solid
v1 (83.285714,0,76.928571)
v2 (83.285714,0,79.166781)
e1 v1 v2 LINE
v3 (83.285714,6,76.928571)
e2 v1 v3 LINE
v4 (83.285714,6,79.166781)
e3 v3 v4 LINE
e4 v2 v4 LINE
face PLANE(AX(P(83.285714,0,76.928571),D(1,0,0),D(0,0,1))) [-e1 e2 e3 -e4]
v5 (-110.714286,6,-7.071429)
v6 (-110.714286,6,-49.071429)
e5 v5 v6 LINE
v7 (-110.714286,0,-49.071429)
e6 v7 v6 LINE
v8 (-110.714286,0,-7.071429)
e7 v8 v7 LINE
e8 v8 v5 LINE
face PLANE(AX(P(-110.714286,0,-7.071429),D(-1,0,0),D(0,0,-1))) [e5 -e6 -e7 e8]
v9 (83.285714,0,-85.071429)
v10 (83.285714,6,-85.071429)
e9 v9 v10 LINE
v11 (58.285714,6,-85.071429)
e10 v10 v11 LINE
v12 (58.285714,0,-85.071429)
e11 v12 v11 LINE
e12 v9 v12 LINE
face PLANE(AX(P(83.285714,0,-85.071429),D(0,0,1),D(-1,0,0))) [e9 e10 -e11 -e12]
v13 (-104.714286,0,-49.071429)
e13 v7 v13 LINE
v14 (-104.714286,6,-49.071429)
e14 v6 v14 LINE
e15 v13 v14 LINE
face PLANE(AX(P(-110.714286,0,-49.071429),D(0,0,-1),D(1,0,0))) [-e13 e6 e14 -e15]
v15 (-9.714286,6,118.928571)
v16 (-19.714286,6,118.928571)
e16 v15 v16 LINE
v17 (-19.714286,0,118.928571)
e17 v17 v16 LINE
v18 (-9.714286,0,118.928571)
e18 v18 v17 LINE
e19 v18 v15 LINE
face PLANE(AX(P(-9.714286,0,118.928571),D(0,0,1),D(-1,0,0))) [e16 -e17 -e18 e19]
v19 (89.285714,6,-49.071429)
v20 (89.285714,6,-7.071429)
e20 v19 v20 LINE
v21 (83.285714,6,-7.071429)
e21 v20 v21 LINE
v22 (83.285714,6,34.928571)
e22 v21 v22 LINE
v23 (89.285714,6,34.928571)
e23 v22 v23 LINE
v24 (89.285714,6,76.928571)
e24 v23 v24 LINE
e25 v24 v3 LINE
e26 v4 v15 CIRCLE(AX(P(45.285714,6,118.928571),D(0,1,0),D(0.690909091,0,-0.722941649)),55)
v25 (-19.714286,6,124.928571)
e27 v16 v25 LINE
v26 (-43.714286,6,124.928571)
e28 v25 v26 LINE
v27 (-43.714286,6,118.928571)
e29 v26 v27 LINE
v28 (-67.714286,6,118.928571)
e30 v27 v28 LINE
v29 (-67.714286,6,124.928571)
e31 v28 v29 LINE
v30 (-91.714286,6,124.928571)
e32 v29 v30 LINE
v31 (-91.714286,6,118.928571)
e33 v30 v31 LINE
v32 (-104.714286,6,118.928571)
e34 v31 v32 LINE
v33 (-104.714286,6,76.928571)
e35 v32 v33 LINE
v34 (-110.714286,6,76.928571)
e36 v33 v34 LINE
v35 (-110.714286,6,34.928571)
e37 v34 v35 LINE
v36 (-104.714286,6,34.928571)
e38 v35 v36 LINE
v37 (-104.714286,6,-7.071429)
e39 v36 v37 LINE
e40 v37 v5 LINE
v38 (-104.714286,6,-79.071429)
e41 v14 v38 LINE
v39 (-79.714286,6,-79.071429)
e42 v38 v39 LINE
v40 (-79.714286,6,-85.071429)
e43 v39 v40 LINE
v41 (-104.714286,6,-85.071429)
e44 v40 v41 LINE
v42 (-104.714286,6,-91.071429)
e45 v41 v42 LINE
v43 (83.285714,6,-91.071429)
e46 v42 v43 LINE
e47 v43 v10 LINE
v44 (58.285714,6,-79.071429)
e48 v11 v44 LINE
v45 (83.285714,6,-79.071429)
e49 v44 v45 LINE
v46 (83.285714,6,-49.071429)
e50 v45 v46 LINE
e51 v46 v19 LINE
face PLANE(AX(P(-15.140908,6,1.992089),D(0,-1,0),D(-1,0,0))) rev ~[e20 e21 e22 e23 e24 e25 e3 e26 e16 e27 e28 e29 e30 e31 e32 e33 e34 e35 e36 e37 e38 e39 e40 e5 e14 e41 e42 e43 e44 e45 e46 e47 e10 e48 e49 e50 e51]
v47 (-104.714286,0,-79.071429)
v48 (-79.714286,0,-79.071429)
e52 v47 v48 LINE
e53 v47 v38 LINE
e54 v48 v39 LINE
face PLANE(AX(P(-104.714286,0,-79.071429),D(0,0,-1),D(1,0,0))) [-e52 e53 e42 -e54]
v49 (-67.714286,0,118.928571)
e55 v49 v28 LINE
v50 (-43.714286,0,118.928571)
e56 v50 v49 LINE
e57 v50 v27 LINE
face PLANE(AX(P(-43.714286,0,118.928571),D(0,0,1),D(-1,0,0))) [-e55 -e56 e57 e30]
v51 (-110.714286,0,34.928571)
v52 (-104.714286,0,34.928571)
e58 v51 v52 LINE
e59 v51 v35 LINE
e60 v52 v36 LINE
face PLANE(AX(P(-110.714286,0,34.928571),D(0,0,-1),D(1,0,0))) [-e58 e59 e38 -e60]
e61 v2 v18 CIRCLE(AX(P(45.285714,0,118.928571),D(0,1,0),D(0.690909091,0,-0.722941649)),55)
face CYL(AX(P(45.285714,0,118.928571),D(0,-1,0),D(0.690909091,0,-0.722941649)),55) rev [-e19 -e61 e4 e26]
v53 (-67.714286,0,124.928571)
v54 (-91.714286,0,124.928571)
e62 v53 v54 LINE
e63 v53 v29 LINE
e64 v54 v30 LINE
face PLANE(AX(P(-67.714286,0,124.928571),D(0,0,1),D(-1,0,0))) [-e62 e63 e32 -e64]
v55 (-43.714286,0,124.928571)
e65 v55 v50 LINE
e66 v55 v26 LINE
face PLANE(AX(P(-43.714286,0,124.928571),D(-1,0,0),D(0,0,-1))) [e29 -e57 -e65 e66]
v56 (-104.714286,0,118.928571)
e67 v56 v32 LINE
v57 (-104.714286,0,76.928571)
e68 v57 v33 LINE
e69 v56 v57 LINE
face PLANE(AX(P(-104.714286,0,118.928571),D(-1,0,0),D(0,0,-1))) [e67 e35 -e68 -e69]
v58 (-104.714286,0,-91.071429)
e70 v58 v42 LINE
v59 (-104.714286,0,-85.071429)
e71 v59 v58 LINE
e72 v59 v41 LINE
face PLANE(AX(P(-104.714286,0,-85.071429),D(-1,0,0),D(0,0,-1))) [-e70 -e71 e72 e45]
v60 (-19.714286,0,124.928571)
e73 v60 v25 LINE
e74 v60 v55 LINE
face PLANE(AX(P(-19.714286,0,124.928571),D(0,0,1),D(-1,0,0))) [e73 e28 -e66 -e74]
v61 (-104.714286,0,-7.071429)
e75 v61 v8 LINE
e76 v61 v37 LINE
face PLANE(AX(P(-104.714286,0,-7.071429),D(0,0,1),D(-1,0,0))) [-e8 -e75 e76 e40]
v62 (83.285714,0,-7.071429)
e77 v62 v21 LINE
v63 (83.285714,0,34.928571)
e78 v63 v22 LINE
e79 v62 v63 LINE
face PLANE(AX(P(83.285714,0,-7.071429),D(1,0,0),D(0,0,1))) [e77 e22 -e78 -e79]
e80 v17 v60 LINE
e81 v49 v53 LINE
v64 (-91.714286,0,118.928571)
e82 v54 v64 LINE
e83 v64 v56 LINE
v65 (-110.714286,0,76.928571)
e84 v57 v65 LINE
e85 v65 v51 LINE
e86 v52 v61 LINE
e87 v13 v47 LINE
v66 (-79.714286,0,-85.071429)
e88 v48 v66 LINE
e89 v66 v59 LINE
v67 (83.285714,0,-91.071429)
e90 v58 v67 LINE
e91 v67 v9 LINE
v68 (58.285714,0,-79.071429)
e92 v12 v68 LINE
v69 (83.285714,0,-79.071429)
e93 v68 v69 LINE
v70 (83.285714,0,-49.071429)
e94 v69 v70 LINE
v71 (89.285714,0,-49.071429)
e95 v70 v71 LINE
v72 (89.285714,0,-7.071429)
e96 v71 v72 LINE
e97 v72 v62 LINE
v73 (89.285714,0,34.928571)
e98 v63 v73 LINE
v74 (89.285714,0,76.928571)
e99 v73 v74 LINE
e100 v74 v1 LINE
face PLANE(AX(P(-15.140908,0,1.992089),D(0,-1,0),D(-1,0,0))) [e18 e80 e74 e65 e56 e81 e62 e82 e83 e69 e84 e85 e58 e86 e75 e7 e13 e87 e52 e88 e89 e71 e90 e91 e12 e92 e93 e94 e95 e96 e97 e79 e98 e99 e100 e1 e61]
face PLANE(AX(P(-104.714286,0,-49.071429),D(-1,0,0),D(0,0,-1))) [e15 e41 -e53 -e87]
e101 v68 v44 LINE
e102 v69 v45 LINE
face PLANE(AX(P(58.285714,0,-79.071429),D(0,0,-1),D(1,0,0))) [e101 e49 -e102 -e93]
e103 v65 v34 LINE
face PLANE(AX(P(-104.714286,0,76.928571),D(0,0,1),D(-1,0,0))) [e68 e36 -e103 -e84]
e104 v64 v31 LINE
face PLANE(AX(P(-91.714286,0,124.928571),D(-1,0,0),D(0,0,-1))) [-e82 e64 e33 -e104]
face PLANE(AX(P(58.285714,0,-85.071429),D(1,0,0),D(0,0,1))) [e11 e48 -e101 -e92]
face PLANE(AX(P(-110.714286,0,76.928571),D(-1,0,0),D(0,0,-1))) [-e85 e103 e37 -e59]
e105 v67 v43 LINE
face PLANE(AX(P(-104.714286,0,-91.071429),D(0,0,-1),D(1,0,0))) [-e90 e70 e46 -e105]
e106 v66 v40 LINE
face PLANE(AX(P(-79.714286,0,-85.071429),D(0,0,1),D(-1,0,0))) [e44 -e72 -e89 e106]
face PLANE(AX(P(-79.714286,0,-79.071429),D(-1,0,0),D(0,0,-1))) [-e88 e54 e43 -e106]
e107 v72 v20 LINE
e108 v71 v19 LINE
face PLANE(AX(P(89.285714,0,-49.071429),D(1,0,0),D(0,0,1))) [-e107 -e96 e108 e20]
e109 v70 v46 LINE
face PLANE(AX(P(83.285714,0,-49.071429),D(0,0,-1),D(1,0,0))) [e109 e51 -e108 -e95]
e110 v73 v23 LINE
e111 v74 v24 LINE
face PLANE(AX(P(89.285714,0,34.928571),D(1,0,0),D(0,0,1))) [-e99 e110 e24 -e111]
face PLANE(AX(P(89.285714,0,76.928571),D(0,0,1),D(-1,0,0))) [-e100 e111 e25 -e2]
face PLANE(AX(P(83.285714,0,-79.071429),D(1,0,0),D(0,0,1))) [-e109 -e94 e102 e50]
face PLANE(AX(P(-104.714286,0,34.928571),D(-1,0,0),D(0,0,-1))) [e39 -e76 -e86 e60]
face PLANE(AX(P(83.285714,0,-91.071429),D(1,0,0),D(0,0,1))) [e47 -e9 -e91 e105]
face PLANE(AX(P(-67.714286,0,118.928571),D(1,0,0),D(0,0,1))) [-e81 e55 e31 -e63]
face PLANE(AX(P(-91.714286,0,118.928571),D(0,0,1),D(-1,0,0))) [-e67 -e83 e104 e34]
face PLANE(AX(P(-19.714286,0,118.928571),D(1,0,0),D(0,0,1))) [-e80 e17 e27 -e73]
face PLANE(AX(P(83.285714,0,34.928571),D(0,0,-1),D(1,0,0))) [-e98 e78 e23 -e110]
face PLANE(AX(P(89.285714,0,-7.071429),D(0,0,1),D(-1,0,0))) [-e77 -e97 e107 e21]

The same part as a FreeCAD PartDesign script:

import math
import FreeCAD as App
import Part
import Sketcher
from FreeCAD import Vector
Q = App.Units.Quantity

doc = App.newDocument("Part")
body = doc.addObject("PartDesign::Body", "Body")

# Sketch on XZ plane
sketch1 = body.newObject("Sketcher::SketchObject", "Sketch")
sketch1.AttachmentSupport = (doc.getObject("XZ_Plane"), [""])
sketch1.MapMode = "FlatFace"
sketch1.addGeometry(Part.LineSegment(Vector(-43.714286, 118.928571, 0), Vector(-43.714286, 124.928571, 0)), False)
sketch1.addGeometry(Part.LineSegment(Vector(-43.714286, 124.928571, 0), Vector(-19.714286, 124.928571, 0)), False)
sketch1.addGeometry(Part.LineSegment(Vector(-19.714286, 124.928571, 0), Vector(-19.714286, 118.928571, 0)), False)
sketch1.addGeometry(Part.LineSegment(Vector(-19.714286, 118.928571, 0), Vector(-9.714286, 118.928571, 0)), False)
sketch1.addGeometry(Part.ArcOfCircle(Part.Circle(Vector(45.285714, 118.928571, 0), Vector(0, 0, 1), 55), math.radians(180), math.radians(313.702114)), False)
sketch1.addGeometry(Part.LineSegment(Vector(83.285714, 79.166781, 0), Vector(83.285714, 76.928571, 0)), False)
sketch1.addGeometry(Part.LineSegment(Vector(83.285714, 76.928571, 0), Vector(89.285714, 76.928571, 0)), False)
sketch1.addGeometry(Part.LineSegment(Vector(89.285714, 76.928571, 0), Vector(89.285714, 34.928571, 0)), False)
sketch1.addGeometry(Part.LineSegment(Vector(89.285714, 34.928571, 0), Vector(83.285714, 34.928571, 0)), False)
sketch1.addGeometry(Part.LineSegment(Vector(83.285714, 34.928571, 0), Vector(83.285714, -7.071429, 0)), False)
sketch1.addGeometry(Part.LineSegment(Vector(83.285714, -7.071429, 0), Vector(89.285714, -7.071429, 0)), False)
sketch1.addGeometry(Part.LineSegment(Vector(89.285714, -7.071429, 0), Vector(89.285714, -49.071429, 0)), False)
sketch1.addGeometry(Part.LineSegment(Vector(89.285714, -49.071429, 0), Vector(83.285714, -49.071429, 0)), False)
sketch1.addGeometry(Part.LineSegment(Vector(83.285714, -49.071429, 0), Vector(83.285714, -79.071429, 0)), False)
sketch1.addGeometry(Part.LineSegment(Vector(83.285714, -79.071429, 0), Vector(58.285714, -79.071429, 0)), False)
sketch1.addGeometry(Part.LineSegment(Vector(58.285714, -79.071429, 0), Vector(58.285714, -85.071429, 0)), False)
sketch1.addGeometry(Part.LineSegment(Vector(58.285714, -85.071429, 0), Vector(83.285714, -85.071429, 0)), False)
sketch1.addGeometry(Part.LineSegment(Vector(83.285714, -85.071429, 0), Vector(83.285714, -91.071429, 0)), False)
sketch1.addGeometry(Part.LineSegment(Vector(83.285714, -91.071429, 0), Vector(-104.714286, -91.071429, 0)), False)
sketch1.addGeometry(Part.LineSegment(Vector(-104.714286, -91.071429, 0), Vector(-104.714286, -85.071429, 0)), False)
sketch1.addGeometry(Part.LineSegment(Vector(-104.714286, -85.071429, 0), Vector(-79.714286, -85.071429, 0)), False)
sketch1.addGeometry(Part.LineSegment(Vector(-79.714286, -85.071429, 0), Vector(-79.714286, -79.071429, 0)), False)
sketch1.addGeometry(Part.LineSegment(Vector(-79.714286, -79.071429, 0), Vector(-104.714286, -79.071429, 0)), False)
sketch1.addGeometry(Part.LineSegment(Vector(-104.714286, -79.071429, 0), Vector(-104.714286, -49.071429, 0)), False)
sketch1.addGeometry(Part.LineSegment(Vector(-104.714286, -49.071429, 0), Vector(-110.714286, -49.071429, 0)), False)
sketch1.addGeometry(Part.LineSegment(Vector(-110.714286, -49.071429, 0), Vector(-110.714286, -7.071429, 0)), False)
sketch1.addGeometry(Part.LineSegment(Vector(-110.714286, -7.071429, 0), Vector(-104.714286, -7.071429, 0)), False)
sketch1.addGeometry(Part.LineSegment(Vector(-104.714286, -7.071429, 0), Vector(-104.714286, 34.928571, 0)), False)
sketch1.addGeometry(Part.LineSegment(Vector(-104.714286, 34.928571, 0), Vector(-110.714286, 34.928571, 0)), False)
sketch1.addGeometry(Part.LineSegment(Vector(-110.714286, 34.928571, 0), Vector(-110.714286, 76.928571, 0)), False)
sketch1.addGeometry(Part.LineSegment(Vector(-110.714286, 76.928571, 0), Vector(-104.714286, 76.928571, 0)), False)
sketch1.addGeometry(Part.LineSegment(Vector(-104.714286, 76.928571, 0), Vector(-104.714286, 118.928571, 0)), False)
sketch1.addGeometry(Part.LineSegment(Vector(-104.714286, 118.928571, 0), Vector(-91.714286, 118.928571, 0)), False)
sketch1.addGeometry(Part.LineSegment(Vector(-91.714286, 118.928571, 0), Vector(-91.714286, 124.928571, 0)), False)
sketch1.addGeometry(Part.LineSegment(Vector(-91.714286, 124.928571, 0), Vector(-67.714286, 124.928571, 0)), False)
sketch1.addGeometry(Part.LineSegment(Vector(-67.714286, 124.928571, 0), Vector(-67.714286, 118.928571, 0)), False)
sketch1.addGeometry(Part.LineSegment(Vector(-67.714286, 118.928571, 0), Vector(-43.714286, 118.928571, 0)), False)
sketch1.addConstraint(Sketcher.Constraint("Coincident", 0, 2, 1, 1))
sketch1.addConstraint(Sketcher.Constraint("Coincident", 1, 2, 2, 1))
sketch1.addConstraint(Sketcher.Constraint("Coincident", 2, 2, 3, 1))
sketch1.addConstraint(Sketcher.Constraint("Coincident", 3, 2, 4, 1))
sketch1.addConstraint(Sketcher.Constraint("Coincident", 4, 2, 5, 1))
sketch1.addConstraint(Sketcher.Constraint("Coincident", 5, 2, 6, 1))
sketch1.addConstraint(Sketcher.Constraint("Coincident", 6, 2, 7, 1))
sketch1.addConstraint(Sketcher.Constraint("Coincident", 7, 2, 8, 1))
sketch1.addConstraint(Sketcher.Constraint("Coincident", 8, 2, 9, 1))
sketch1.addConstraint(Sketcher.Constraint("Coincident", 9, 2, 10, 1))
sketch1.addConstraint(Sketcher.Constraint("Coincident", 10, 2, 11, 1))
sketch1.addConstraint(Sketcher.Constraint("Coincident", 11, 2, 12, 1))
sketch1.addConstraint(Sketcher.Constraint("Coincident", 12, 2, 13, 1))
sketch1.addConstraint(Sketcher.Constraint("Coincident", 13, 2, 14, 1))
sketch1.addConstraint(Sketcher.Constraint("Coincident", 14, 2, 15, 1))
sketch1.addConstraint(Sketcher.Constraint("Coincident", 15, 2, 16, 1))
sketch1.addConstraint(Sketcher.Constraint("Coincident", 16, 2, 17, 1))
sketch1.addConstraint(Sketcher.Constraint("Coincident", 17, 2, 18, 1))
sketch1.addConstraint(Sketcher.Constraint("Coincident", 18, 2, 19, 1))
sketch1.addConstraint(Sketcher.Constraint("Coincident", 19, 2, 20, 1))
sketch1.addConstraint(Sketcher.Constraint("Coincident", 20, 2, 21, 1))
sketch1.addConstraint(Sketcher.Constraint("Coincident", 21, 2, 22, 1))
sketch1.addConstraint(Sketcher.Constraint("Coincident", 22, 2, 23, 1))
sketch1.addConstraint(Sketcher.Constraint("Coincident", 23, 2, 24, 1))
sketch1.addConstraint(Sketcher.Constraint("Coincident", 24, 2, 25, 1))
sketch1.addConstraint(Sketcher.Constraint("Coincident", 25, 2, 26, 1))
sketch1.addConstraint(Sketcher.Constraint("Coincident", 26, 2, 27, 1))
sketch1.addConstraint(Sketcher.Constraint("Coincident", 27, 2, 28, 1))
sketch1.addConstraint(Sketcher.Constraint("Coincident", 28, 2, 29, 1))
sketch1.addConstraint(Sketcher.Constraint("Coincident", 29, 2, 30, 1))
sketch1.addConstraint(Sketcher.Constraint("Coincident", 30, 2, 31, 1))
sketch1.addConstraint(Sketcher.Constraint("Coincident", 31, 2, 32, 1))
sketch1.addConstraint(Sketcher.Constraint("Coincident", 32, 2, 33, 1))
sketch1.addConstraint(Sketcher.Constraint("Coincident", 33, 2, 34, 1))
sketch1.addConstraint(Sketcher.Constraint("Coincident", 34, 2, 35, 1))
sketch1.addConstraint(Sketcher.Constraint("Coincident", 35, 2, 36, 1))
sketch1.addConstraint(Sketcher.Constraint("Coincident", 36, 2, 0, 1))
sketch1.addConstraint(Sketcher.Constraint("Vertical", 0))
sketch1.addConstraint(Sketcher.Constraint("Horizontal", 1))
sketch1.addConstraint(Sketcher.Constraint("Vertical", 2))
sketch1.addConstraint(Sketcher.Constraint("Horizontal", 3))
sketch1.addConstraint(Sketcher.Constraint("Vertical", 5))
sketch1.addConstraint(Sketcher.Constraint("Horizontal", 6))
sketch1.addConstraint(Sketcher.Constraint("Vertical", 7))
sketch1.addConstraint(Sketcher.Constraint("Horizontal", 8))
sketch1.addConstraint(Sketcher.Constraint("Vertical", 9))
sketch1.addConstraint(Sketcher.Constraint("Horizontal", 10))
sketch1.addConstraint(Sketcher.Constraint("Vertical", 11))
sketch1.addConstraint(Sketcher.Constraint("Horizontal", 12))
sketch1.addConstraint(Sketcher.Constraint("Vertical", 13))
sketch1.addConstraint(Sketcher.Constraint("Horizontal", 14))
sketch1.addConstraint(Sketcher.Constraint("Vertical", 15))
sketch1.addConstraint(Sketcher.Constraint("Horizontal", 16))
sketch1.addConstraint(Sketcher.Constraint("Vertical", 17))
sketch1.addConstraint(Sketcher.Constraint("Horizontal", 18))
sketch1.addConstraint(Sketcher.Constraint("Vertical", 19))
sketch1.addConstraint(Sketcher.Constraint("Horizontal", 20))
sketch1.addConstraint(Sketcher.Constraint("Vertical", 21))
sketch1.addConstraint(Sketcher.Constraint("Horizontal", 22))
sketch1.addConstraint(Sketcher.Constraint("Vertical", 23))
sketch1.addConstraint(Sketcher.Constraint("Horizontal", 24))
sketch1.addConstraint(Sketcher.Constraint("Vertical", 25))
sketch1.addConstraint(Sketcher.Constraint("Horizontal", 26))
sketch1.addConstraint(Sketcher.Constraint("Vertical", 27))
sketch1.addConstraint(Sketcher.Constraint("Horizontal", 28))
sketch1.addConstraint(Sketcher.Constraint("Vertical", 29))
sketch1.addConstraint(Sketcher.Constraint("Horizontal", 30))
sketch1.addConstraint(Sketcher.Constraint("Vertical", 31))
sketch1.addConstraint(Sketcher.Constraint("Horizontal", 32))
sketch1.addConstraint(Sketcher.Constraint("Vertical", 33))
sketch1.addConstraint(Sketcher.Constraint("Horizontal", 34))
sketch1.addConstraint(Sketcher.Constraint("Vertical", 35))
sketch1.addConstraint(Sketcher.Constraint("Horizontal", 36))
sketch1.addConstraint(Sketcher.Constraint("Horizontal", 4, 3, 2, 2))
sketch1.addConstraint(Sketcher.Constraint("Horizontal", 16, 2, 19, 2))
sketch1.addConstraint(Sketcher.Constraint("Horizontal", 14, 2, 21, 2))
sketch1.addConstraint(Sketcher.Constraint("Horizontal", 12, 2, 23, 2))
sketch1.addConstraint(Sketcher.Constraint("Horizontal", 10, 2, 25, 2))
sketch1.addConstraint(Sketcher.Constraint("Horizontal", 8, 2, 27, 2))
sketch1.addConstraint(Sketcher.Constraint("Horizontal", 6, 2, 29, 2))
sketch1.addConstraint(Sketcher.Constraint("Horizontal", 3, 2, 31, 2))
sketch1.addConstraint(Sketcher.Constraint("Horizontal", 1, 2, 33, 2))
sketch1.addConstraint(Sketcher.Constraint("Horizontal", 32, 2, 35, 2))
sketch1.addConstraint(Sketcher.Constraint("Vertical", 5, 2, 8, 2))
sketch1.addConstraint(Sketcher.Constraint("Vertical", 7, 2, 10, 2))
sketch1.addConstraint(Sketcher.Constraint("Vertical", 9, 2, 12, 2))
sketch1.addConstraint(Sketcher.Constraint("Vertical", 13, 2, 16, 2))
sketch1.addConstraint(Sketcher.Constraint("Vertical", 19, 2, 22, 2))
sketch1.addConstraint(Sketcher.Constraint("Vertical", 23, 2, 26, 2))
sketch1.addConstraint(Sketcher.Constraint("Vertical", 25, 2, 28, 2))
sketch1.addConstraint(Sketcher.Constraint("Vertical", 27, 2, 30, 2))
sketch1.addConstraint(Sketcher.Constraint("Equal", 16, 20))
sketch1.addConstraint(Sketcher.Constraint("Equal", 12, 24))
sketch1.addConstraint(Sketcher.Constraint("Equal", 1, 34))
sketch1.addConstraint(Sketcher.Constraint("Equal", 34, 36))
sketch1.addConstraint(Sketcher.Constraint("Equal", 30, 0))
sketch1.addConstraint(Sketcher.Constraint("Equal", 7, 9))
sketch1.addConstraint(Sketcher.Constraint("Equal", 9, 11))
sketch1.addConstraint(Sketcher.Constraint("Equal", 2, 15))
sketch1.addConstraint(Sketcher.Constraint("Equal", 15, 17))
sketch1.addConstraint(Sketcher.Constraint("Equal", 29, 31))
sketch1.addConstraint(Sketcher.Constraint("Radius", 4, Q("55 mm")))
sketch1.addConstraint(Sketcher.Constraint("DistanceX", 1, 1, 1, 2, Q("24 mm")))
sketch1.addConstraint(Sketcher.Constraint("DistanceX", 3, 1, 3, 2, Q("10 mm")))
sketch1.addConstraint(Sketcher.Constraint("DistanceX", 6, 1, 6, 2, Q("6 mm")))
sketch1.addConstraint(Sketcher.Constraint("DistanceX", 14, 2, 14, 1, Q("25 mm")))
sketch1.addConstraint(Sketcher.Constraint("DistanceX", 18, 2, 18, 1, Q("188 mm")))
sketch1.addConstraint(Sketcher.Constraint("DistanceX", 32, 1, 32, 2, Q("13 mm")))
sketch1.addConstraint(Sketcher.Constraint("DistanceY", 7, 2, 7, 1, Q("42 mm")))
sketch1.addConstraint(Sketcher.Constraint("DistanceY", 13, 2, 13, 1, Q("30 mm")))
sketch1.addConstraint(Sketcher.Constraint("DistanceY", -1, 1, 4, 3, Q("118.928571 mm")))
sketch1.addConstraint(Sketcher.Constraint("DistanceX", -1, 1, 4, 3, Q("45.285714 mm")))
pad1 = body.newObject("PartDesign::Pad", "Pad")
pad1.Profile = sketch1
pad1.Length = 6
pad1.Reversed = True

doc.recompute()
